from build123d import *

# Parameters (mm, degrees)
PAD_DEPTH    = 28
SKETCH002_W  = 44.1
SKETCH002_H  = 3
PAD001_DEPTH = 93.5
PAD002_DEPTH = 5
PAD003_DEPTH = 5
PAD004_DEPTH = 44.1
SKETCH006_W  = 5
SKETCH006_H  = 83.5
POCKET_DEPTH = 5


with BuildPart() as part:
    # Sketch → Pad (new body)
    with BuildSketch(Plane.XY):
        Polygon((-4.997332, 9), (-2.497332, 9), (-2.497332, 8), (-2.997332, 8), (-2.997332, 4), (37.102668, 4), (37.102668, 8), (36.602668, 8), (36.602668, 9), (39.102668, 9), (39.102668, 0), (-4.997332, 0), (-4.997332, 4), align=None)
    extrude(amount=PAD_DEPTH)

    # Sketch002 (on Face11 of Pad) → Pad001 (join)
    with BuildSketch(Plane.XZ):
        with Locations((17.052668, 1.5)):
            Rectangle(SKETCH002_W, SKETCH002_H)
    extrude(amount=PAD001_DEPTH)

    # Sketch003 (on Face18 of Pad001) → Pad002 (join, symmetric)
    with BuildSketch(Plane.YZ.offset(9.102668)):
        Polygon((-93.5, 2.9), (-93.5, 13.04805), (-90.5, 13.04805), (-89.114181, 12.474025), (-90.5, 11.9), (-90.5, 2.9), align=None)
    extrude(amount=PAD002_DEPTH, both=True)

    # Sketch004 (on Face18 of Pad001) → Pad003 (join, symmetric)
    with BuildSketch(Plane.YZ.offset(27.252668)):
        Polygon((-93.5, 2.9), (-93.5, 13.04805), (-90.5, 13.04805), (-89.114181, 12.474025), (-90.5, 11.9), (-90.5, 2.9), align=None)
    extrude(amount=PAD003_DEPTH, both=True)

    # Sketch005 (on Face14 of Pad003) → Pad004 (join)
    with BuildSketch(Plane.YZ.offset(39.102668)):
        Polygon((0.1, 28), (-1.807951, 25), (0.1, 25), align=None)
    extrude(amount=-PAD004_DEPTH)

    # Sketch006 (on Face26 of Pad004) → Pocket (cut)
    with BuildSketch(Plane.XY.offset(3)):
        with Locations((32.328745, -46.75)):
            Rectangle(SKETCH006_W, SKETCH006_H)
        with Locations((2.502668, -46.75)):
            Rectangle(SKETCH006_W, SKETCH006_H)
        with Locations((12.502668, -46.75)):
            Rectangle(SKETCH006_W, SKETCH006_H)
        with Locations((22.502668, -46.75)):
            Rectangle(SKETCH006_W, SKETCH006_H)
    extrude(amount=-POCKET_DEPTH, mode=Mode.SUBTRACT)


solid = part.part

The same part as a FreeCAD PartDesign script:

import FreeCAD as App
import Part
import Sketcher

V = App.Vector
Q = App.Units.Quantity

doc = App.newDocument("Part")
params = doc.addObject("Spreadsheet::Sheet", "Params")
for row, (alias, value) in enumerate([
    ("sketch1_height", "9 mm"),
    ("sketch1_height2", "1 mm"),
    ("sketch1_height3", "4 mm"),
    ("sketch1_width", "2.5 mm"),
    ("sketch1_width2", "44.1 mm"),
    ("pad1_length", "28 mm"),
    ("sketch2_height", "3 mm"),
    ("sketch2_width", "44.1 mm"),
    ("pad2_length", "93.5 mm"),
    ("sketch3_width", "3 mm"),
    ("sketch3_height", "9 mm"),
    ("sketch3_length", "1.5 mm"),
    ("pad3_length", "10 mm"),
    ("sketch4_width", "3 mm"),
    ("sketch4_height", "9 mm"),
    ("sketch4_length", "1.5 mm"),
    ("pad4_length", "10 mm"),
    ("sketch5_height", "3 mm"),
    ("pad5_length", "44.1 mm"),
    ("sketch6_width", "5 mm"),
    ("sketch6_height", "83.5 mm"),
    ("pocket1_length", "5 mm"),
], start=1):
    params.set(f"A{row}", alias)
    params.set(f"B{row}", "=" + value)
    params.setAlias(f"B{row}", alias)

body = doc.addObject("PartDesign::Body", "Body")

# Sketch on XY plane
sketch1 = body.newObject("Sketcher::SketchObject", "Sketch")
sketch1.AttachmentSupport = (doc.getObject("XY_Plane"), [""])
sketch1.MapMode = "FlatFace"
sketch1.addGeometry(Part.LineSegment(V(-2.5, 9, 0), V(-5, 9, 0)), False)
sketch1.addGeometry(Part.LineSegment(V(-5, 9, 0), V(-5, 0, 0)), False)
sketch1.addGeometry(Part.LineSegment(V(-5, 0, 0), V(39.1, 0, 0)), False)
sketch1.addGeometry(Part.LineSegment(V(39.1, 0, 0), V(39.1, 9, 0)), False)
sketch1.addGeometry(Part.LineSegment(V(39.1, 9, 0), V(36.6, 9, 0)), False)
sketch1.addGeometry(Part.LineSegment(V(36.6, 9, 0), V(36.6, 8, 0)), False)
sketch1.addGeometry(Part.LineSegment(V(36.6, 8, 0), V(37.1, 8, 0)), False)
sketch1.addGeometry(Part.LineSegment(V(37.1, 8, 0), V(37.1, 4, 0)), False)
sketch1.addGeometry(Part.LineSegment(V(37.1, 4, 0), V(-3, 4, 0)), False)
sketch1.addGeometry(Part.LineSegment(V(-3, 4, 0), V(-3, 8, 0)), False)
sketch1.addGeometry(Part.LineSegment(V(-3, 8, 0), V(-2.5, 8, 0)), False)
sketch1.addGeometry(Part.LineSegment(V(-2.5, 8, 0), V(-2.5, 9, 0)), False)
sketch1.addConstraint(Sketcher.Constraint("Coincident", 0, 2, 1, 1))
sketch1.addConstraint(Sketcher.Constraint("Coincident", 1, 2, 2, 1))
sketch1.addConstraint(Sketcher.Constraint("Coincident", 2, 2, 3, 1))
sketch1.addConstraint(Sketcher.Constraint("Coincident", 3, 2, 4, 1))
sketch1.addConstraint(Sketcher.Constraint("Coincident", 4, 2, 5, 1))
sketch1.addConstraint(Sketcher.Constraint("Coincident", 5, 2, 6, 1))
sketch1.addConstraint(Sketcher.Constraint("Coincident", 6, 2, 7, 1))
sketch1.addConstraint(Sketcher.Constraint("Coincident", 7, 2, 8, 1))
sketch1.addConstraint(Sketcher.Constraint("Coincident", 8, 2, 9, 1))
sketch1.addConstraint(Sketcher.Constraint("Coincident", 9, 2, 10, 1))
sketch1.addConstraint(Sketcher.Constraint("Coincident", 10, 2, 11, 1))
sketch1.addConstraint(Sketcher.Constraint("Coincident", 11, 2, 0, 1))
sketch1.addConstraint(Sketcher.Constraint("Horizontal", 0))
sketch1.addConstraint(Sketcher.Constraint("Vertical", 1))
sketch1.addConstraint(Sketcher.Constraint("Horizontal", 2))
sketch1.addConstraint(Sketcher.Constraint("Vertical", 3))
sketch1.addConstraint(Sketcher.Constraint("Horizontal", 4))
sketch1.addConstraint(Sketcher.Constraint("Vertical", 5))
sketch1.addConstraint(Sketcher.Constraint("Horizontal", 6))
sketch1.addConstraint(Sketcher.Constraint("Vertical", 7))
sketch1.addConstraint(Sketcher.Constraint("Horizontal", 8))
sketch1.addConstraint(Sketcher.Constraint("Vertical", 9))
sketch1.addConstraint(Sketcher.Constraint("Horizontal", 10))
sketch1.addConstraint(Sketcher.Constraint("Vertical", 11))
sketch1.addConstraint(Sketcher.Constraint("PointOnObject", 1, 2, -1))
sketch1.addConstraint(Sketcher.Constraint("Horizontal", 0, 2, 3, 2))
sketch1.addConstraint(Sketcher.Constraint("Horizontal", 6, 2, 9, 2))
sketch1.addConstraint(Sketcher.Constraint("Equal", 0, 4))
sketch1.addConstraint(Sketcher.Constraint("Equal", 6, 10))
sketch1.addConstraint(Sketcher.Constraint("DistanceY", 1, 2, 1, 1, 9.0))
sketch1.addConstraint(Sketcher.Constraint("DistanceY", 5, 2, 5, 1, 1.0))
sketch1.addConstraint(Sketcher.Constraint("DistanceY", 7, 2, 7, 1, 4.0))
sketch1.addConstraint(Sketcher.Constraint("DistanceX", 0, 2, 0, 1, 2.5))
sketch1.addConstraint(Sketcher.Constraint("DistanceX", 2, 1, 2, 2, 44.1))
sketch1.addConstraint(Sketcher.Constraint("DistanceX", 6, 1, 6, 2, 0.5))
sketch1.addConstraint(Sketcher.Constraint("DistanceX", 0, 2, -1, 1, 4.997332))
sketch1.setExpression("Constraints[29]", "Params.sketch1_height")
sketch1.setExpression("Constraints[30]", "Params.sketch1_height2")
sketch1.setExpression("Constraints[31]", "Params.sketch1_height3")
sketch1.setExpression("Constraints[32]", "Params.sketch1_width")
sketch1.setExpression("Constraints[33]", "Params.sketch1_width2")
pad1 = body.newObject("PartDesign::Pad", "Pad")
pad1.Profile = sketch1
pad1.setExpression("Length", "Params.pad1_length")

# Sketch on XZ plane
sketch2 = body.newObject("Sketcher::SketchObject", "Sketch001")
sketch2.AttachmentSupport = (doc.getObject("XZ_Plane"), [""])
sketch2.MapMode = "FlatFace"
sketch2.addGeometry(Part.LineSegment(V(-5, 3, 0), V(-5, 0, 0)), False)
sketch2.addGeometry(Part.LineSegment(V(-5, 0, 0), V(39.1, 0, 0)), False)
sketch2.addGeometry(Part.LineSegment(V(39.1, 0, 0), V(39.1, 3, 0)), False)
sketch2.addGeometry(Part.LineSegment(V(39.1, 3, 0), V(-5, 3, 0)), False)
sketch2.addConstraint(Sketcher.Constraint("Coincident", 0, 2, 1, 1))
sketch2.addConstraint(Sketcher.Constraint("Coincident", 1, 2, 2, 1))
sketch2.addConstraint(Sketcher.Constraint("Coincident", 2, 2, 3, 1))
sketch2.addConstraint(Sketcher.Constraint("Coincident", 3, 2, 0, 1))
sketch2.addConstraint(Sketcher.Constraint("Vertical", 0))
sketch2.addConstraint(Sketcher.Constraint("Horizontal", 1))
sketch2.addConstraint(Sketcher.Constraint("Vertical", 2))
sketch2.addConstraint(Sketcher.Constraint("Horizontal", 3))
sketch2.addConstraint(Sketcher.Constraint("PointOnObject", 0, 2, -1))
sketch2.addConstraint(Sketcher.Constraint("DistanceY", 0, 2, 0, 1, 3.0))
sketch2.addConstraint(Sketcher.Constraint("DistanceX", 1, 1, 1, 2, 44.1))
sketch2.addConstraint(Sketcher.Constraint("DistanceX", 0, 2, -1, 1, 4.997332))
sketch2.setExpression("Constraints[9]", "Params.sketch2_height")
sketch2.setExpression("Constraints[10]", "Params.sketch2_width")
pad2 = body.newObject("PartDesign::Pad", "Pad001")
pad2.Profile = sketch2
pad2.setExpression("Length", "Params.pad2_length")

# Sketch on YZ plane
sketch3 = body.newObject("Sketcher::SketchObject", "Sketch002")
sketch3.AttachmentSupport = (doc.getObject("YZ_Plane"), [""])
sketch3.MapMode = "FlatFace"
sketch3.AttachmentOffset = App.Placement(V(0, 0, 9.102668), App.Rotation())
sketch3.addGeometry(Part.LineSegment(V(-93.5, 13, 0), V(-93.5, 2.9, 0)), False)
sketch3.addGeometry(Part.LineSegment(V(-93.5, 2.9, 0), V(-90.5, 2.9, 0)), False)
sketch3.addGeometry(Part.LineSegment(V(-90.5, 2.9, 0), V(-90.5, 11.9, 0)), False)
sketch3.addGeometry(Part.LineSegment(V(-90.5, 11.9, 0), V(-89.1, 12.5, 0)), False)
sketch3.addGeometry(Part.LineSegment(V(-89.1, 12.5, 0), V(-90.5, 13, 0)), False)
sketch3.addGeometry(Part.LineSegment(V(-90.5, 13, 0), V(-93.5, 13, 0)), False)
sketch3.addConstraint(Sketcher.Constraint("Coincident", 0, 2, 1, 1))
sketch3.addConstraint(Sketcher.Constraint("Coincident", 1, 2, 2, 1))
sketch3.addConstraint(Sketcher.Constraint("Coincident", 2, 2, 3, 1))
sketch3.addConstraint(Sketcher.Constraint("Coincident", 3, 2, 4, 1))
sketch3.addConstraint(Sketcher.Constraint("Coincident", 4, 2, 5, 1))
sketch3.addConstraint(Sketcher.Constraint("Coincident", 5, 2, 0, 1))
sketch3.addConstraint(Sketcher.Constraint("Vertical", 0))
sketch3.addConstraint(Sketcher.Constraint("Horizontal", 1))
sketch3.addConstraint(Sketcher.Constraint("Vertical", 2))
sketch3.addConstraint(Sketcher.Constraint("Horizontal", 5))
sketch3.addConstraint(Sketcher.Constraint("Vertical", 2, 2, 4, 2))
sketch3.addConstraint(Sketcher.Constraint("Equal", 3, 4))
sketch3.addConstraint(Sketcher.Constraint("DistanceX", 1, 1, 1, 2, 3.0))
sketch3.addConstraint(Sketcher.Constraint("DistanceY", 2, 1, 2, 2, 9.0))
sketch3.addConstraint(Sketcher.Constraint("Angle", 3, Q("22.499999 deg")))
sketch3.addConstraint(Sketcher.Constraint("Distance", 3, 1.5))
sketch3.addConstraint(Sketcher.Constraint("DistanceX", 0, 2, -1, 1, 93.5))
sketch3.addConstraint(Sketcher.Constraint("DistanceY", -1, 1, 0, 2, 2.9))
sketch3.setExpression("Constraints[12]", "Params.sketch3_width")
sketch3.setExpression("Constraints[13]", "Params.sketch3_height")
sketch3.setExpression("Constraints[15]", "Params.sketch3_length")
pad3 = body.newObject("PartDesign::Pad", "Pad002")
pad3.Profile = sketch3
pad3.setExpression("Length", "Params.pad3_length")
pad3.Midplane = True

# Sketch on YZ plane
sketch4 = body.newObject("Sketcher::SketchObject", "Sketch003")
sketch4.AttachmentSupport = (doc.getObject("YZ_Plane"), [""])
sketch4.MapMode = "FlatFace"
sketch4.AttachmentOffset = App.Placement(V(0, 0, 27.252668), App.Rotation())
sketch4.addGeometry(Part.LineSegment(V(-93.5, 13, 0), V(-93.5, 2.9, 0)), False)
sketch4.addGeometry(Part.LineSegment(V(-93.5, 2.9, 0), V(-90.5, 2.9, 0)), False)
sketch4.addGeometry(Part.LineSegment(V(-90.5, 2.9, 0), V(-90.5, 11.9, 0)), False)
sketch4.addGeometry(Part.LineSegment(V(-90.5, 11.9, 0), V(-89.1, 12.5, 0)), False)
sketch4.addGeometry(Part.LineSegment(V(-89.1, 12.5, 0), V(-90.5, 13, 0)), False)
sketch4.addGeometry(Part.LineSegment(V(-90.5, 13, 0), V(-93.5, 13, 0)), False)
sketch4.addConstraint(Sketcher.Constraint("Coincident", 0, 2, 1, 1))
sketch4.addConstraint(Sketcher.Constraint("Coincident", 1, 2, 2, 1))
sketch4.addConstraint(Sketcher.Constraint("Coincident", 2, 2, 3, 1))
sketch4.addConstraint(Sketcher.Constraint("Coincident", 3, 2, 4, 1))
sketch4.addConstraint(Sketcher.Constraint("Coincident", 4, 2, 5, 1))
sketch4.addConstraint(Sketcher.Constraint("Coincident", 5, 2, 0, 1))
sketch4.addConstraint(Sketcher.Constraint("Vertical", 0))
sketch4.addConstraint(Sketcher.Constraint("Horizontal", 1))
sketch4.addConstraint(Sketcher.Constraint("Vertical", 2))
sketch4.addConstraint(Sketcher.Constraint("Horizontal", 5))
sketch4.addConstraint(Sketcher.Constraint("Vertical", 2, 2, 4, 2))
sketch4.addConstraint(Sketcher.Constraint("Equal", 3, 4))
sketch4.addConstraint(Sketcher.Constraint("DistanceX", 1, 1, 1, 2, 3.0))
sketch4.addConstraint(Sketcher.Constraint("DistanceY", 2, 1, 2, 2, 9.0))
sketch4.addConstraint(Sketcher.Constraint("Angle", 3, Q("22.499999 deg")))
sketch4.addConstraint(Sketcher.Constraint("Distance", 3, 1.5))
sketch4.addConstraint(Sketcher.Constraint("DistanceX", 0, 2, -1, 1, 93.5))
sketch4.addConstraint(Sketcher.Constraint("DistanceY", -1, 1, 0, 2, 2.9))
sketch4.setExpression("Constraints[12]", "Params.sketch4_width")
sketch4.setExpression("Constraints[13]", "Params.sketch4_height")
sketch4.setExpression("Constraints[15]", "Params.sketch4_length")
pad4 = body.newObject("PartDesign::Pad", "Pad003")
pad4.Profile = sketch4
pad4.setExpression("Length", "Params.pad4_length")
pad4.Midplane = True

# Sketch on YZ plane
sketch5 = body.newObject("Sketcher::SketchObject", "Sketch004")
sketch5.AttachmentSupport = (doc.getObject("YZ_Plane"), [""])
sketch5.MapMode = "FlatFace"
sketch5.AttachmentOffset = App.Placement(V(0, 0, 39.102668), App.Rotation())
sketch5.addGeometry(Part.LineSegment(V(0.1, 28, 0), V(-1.8, 25, 0)), False)
sketch5.addGeometry(Part.LineSegment(V(-1.8, 25, 0), V(0.1, 25, 0)), False)
sketch5.addGeometry(Part.LineSegment(V(0.1, 25, 0), V(0.1, 28, 0)), False)
sketch5.addConstraint(Sketcher.Constraint("Coincident", 0, 2, 1, 1))
sketch5.addConstraint(Sketcher.Constraint("Coincident", 1, 2, 2, 1))
sketch5.addConstraint(Sketcher.Constraint("Coincident", 2, 2, 0, 1))
sketch5.addConstraint(Sketcher.Constraint("Horizontal", 1))
sketch5.addConstraint(Sketcher.Constraint("Vertical", 2))
sketch5.addConstraint(Sketcher.Constraint("DistanceY", 2, 1, 2, 2, 3.0))
sketch5.addConstraint(Sketcher.Constraint("DistanceY", -1, 1, 0, 2, 25.0))
sketch5.addConstraint(Sketcher.Constraint("DistanceX", -1, 1, 1, 2, 0.1))
sketch5.addConstraint(Sketcher.Constraint("DistanceX", 1, 1, 1, 2, 1.907951))
sketch5.setExpression("Constraints[5]", "Params.sketch5_height")
pad5 = body.newObject("PartDesign::Pad", "Pad004")
pad5.Profile = sketch5
pad5.setExpression("Length", "Params.pad5_length")
pad5.Reversed = True

# Sketch on XY plane
sketch6 = body.newObject("Sketcher::SketchObject", "Sketch005")
sketch6.AttachmentSupport = (doc.getObject("XY_Plane"), [""])
sketch6.MapMode = "FlatFace"
sketch6.AttachmentOffset = App.Placement(V(0, 0, 3), App.Rotation())
sketch6.addGeometry(Part.LineSegment(V(29.8, -5, 0), V(29.8, -88.5, 0)), False)
sketch6.addGeometry(Part.LineSegment(V(29.8, -88.5, 0), V(34.8, -88.5, 0)), False)
sketch6.addGeometry(Part.LineSegment(V(34.8, -88.5, 0), V(34.8, -5, 0)), False)
sketch6.addGeometry(Part.LineSegment(V(34.8, -5, 0), V(29.8, -5, 0)), False)
sketch6.addGeometry(Part.LineSegment(V(0, -5, 0), V(0, -88.5, 0)), False)
sketch6.addGeometry(Part.LineSegment(V(0, -88.5, 0), V(5, -88.5, 0)), False)
sketch6.addGeometry(Part.LineSegment(V(5, -88.5, 0), V(5, -5, 0)), False)
sketch6.addGeometry(Part.LineSegment(V(5, -5, 0), V(0, -5, 0)), False)
sketch6.addGeometry(Part.LineSegment(V(10, -5, 0), V(10, -88.5, 0)), False)
sketch6.addGeometry(Part.LineSegment(V(10, -88.5, 0), V(15, -88.5, 0)), False)
sketch6.addGeometry(Part.LineSegment(V(15, -88.5, 0), V(15, -5, 0)), False)
sketch6.addGeometry(Part.LineSegment(V(15, -5, 0), V(10, -5, 0)), False)
sketch6.addGeometry(Part.LineSegment(V(20, -5, 0), V(20, -88.5, 0)), False)
sketch6.addGeometry(Part.LineSegment(V(20, -88.5, 0), V(25, -88.5, 0)), False)
sketch6.addGeometry(Part.LineSegment(V(25, -88.5, 0), V(25, -5, 0)), False)
sketch6.addGeometry(Part.LineSegment(V(25, -5, 0), V(20, -5, 0)), False)
sketch6.addConstraint(Sketcher.Constraint("Coincident", 0, 2, 1, 1))
sketch6.addConstraint(Sketcher.Constraint("Coincident", 1, 2, 2, 1))
sketch6.addConstraint(Sketcher.Constraint("Coincident", 2, 2, 3, 1))
sketch6.addConstraint(Sketcher.Constraint("Coincident", 3, 2, 0, 1))
sketch6.addConstraint(Sketcher.Constraint("Coincident", 4, 2, 5, 1))
sketch6.addConstraint(Sketcher.Constraint("Coincident", 5, 2, 6, 1))
sketch6.addConstraint(Sketcher.Constraint("Coincident", 6, 2, 7, 1))
sketch6.addConstraint(Sketcher.Constraint("Coincident", 7, 2, 4, 1))
sketch6.addConstraint(Sketcher.Constraint("Coincident", 8, 2, 9, 1))
sketch6.addConstraint(Sketcher.Constraint("Coincident", 9, 2, 10, 1))
sketch6.addConstraint(Sketcher.Constraint("Coincident", 10, 2, 11, 1))
sketch6.addConstraint(Sketcher.Constraint("Coincident", 11, 2, 8, 1))
sketch6.addConstraint(Sketcher.Constraint("Coincident", 12, 2, 13, 1))
sketch6.addConstraint(Sketcher.Constraint("Coincident", 13, 2, 14, 1))
sketch6.addConstraint(Sketcher.Constraint("Coincident", 14, 2, 15, 1))
sketch6.addConstraint(Sketcher.Constraint("Coincident", 15, 2, 12, 1))
sketch6.addConstraint(Sketcher.Constraint("Vertical", 0))
sketch6.addConstraint(Sketcher.Constraint("Horizontal", 1))
sketch6.addConstraint(Sketcher.Constraint("Vertical", 2))
sketch6.addConstraint(Sketcher.Constraint("Horizontal", 3))
sketch6.addConstraint(Sketcher.Constraint("Vertical", 4))
sketch6.addConstraint(Sketcher.Constraint("Horizontal", 5))
sketch6.addConstraint(Sketcher.Constraint("Vertical", 6))
sketch6.addConstraint(Sketcher.Constraint("Horizontal", 7))
sketch6.addConstraint(Sketcher.Constraint("Vertical", 8))
sketch6.addConstraint(Sketcher.Constraint("Horizontal", 9))
sketch6.addConstraint(Sketcher.Constraint("Vertical", 10))
sketch6.addConstraint(Sketcher.Constraint("Horizontal", 11))
sketch6.addConstraint(Sketcher.Constraint("Vertical", 12))
sketch6.addConstraint(Sketcher.Constraint("Horizontal", 13))
sketch6.addConstraint(Sketcher.Constraint("Vertical", 14))
sketch6.addConstraint(Sketcher.Constraint("Horizontal", 15))
sketch6.addConstraint(Sketcher.Constraint("Horizontal", 1, 2, 4, 2))
sketch6.addConstraint(Sketcher.Constraint("Horizontal", 3, 2, 6, 2))
sketch6.addConstraint(Sketcher.Constraint("Horizontal", 5, 2, 8, 2))
sketch6.addConstraint(Sketcher.Constraint("Horizontal", 7, 2, 10, 2))
sketch6.addConstraint(Sketcher.Constraint("Horizontal", 9, 2, 12, 2))
sketch6.addConstraint(Sketcher.Constraint("Horizontal", 11, 2, 14, 2))
sketch6.addConstraint(Sketcher.Constraint("Equal", 3, 5))
sketch6.addConstraint(Sketcher.Constraint("Equal", 7, 9))
sketch6.addConstraint(Sketcher.Constraint("Equal", 11, 13))
sketch6.addConstraint(Sketcher.Constraint("DistanceX", 1, 1, 1, 2, 5.0))
sketch6.addConstraint(Sketcher.Constraint("DistanceY", 0, 2, 0, 1, 83.5))
sketch6.addConstraint(Sketcher.Constraint("DistanceY", 2, 2, -1, 1, 5.0))
sketch6.addConstraint(Sketcher.Constraint("DistanceX", 5, 2, 8, 2, 5.0))
sketch6.addConstraint(Sketcher.Constraint("DistanceX", 9, 2, 12, 2, 5.0))
sketch6.addConstraint(Sketcher.Constraint("DistanceX", -1, 1, 12, 2, 20.002668))
sketch6.addConstraint(Sketcher.Constraint("DistanceX", -1, 1, 0, 2, 29.828745))
sketch6.setExpression("Constraints[41]", "Params.sketch6_width")
sketch6.setExpression("Constraints[42]", "Params.sketch6_height")
pocket1 = body.newObject("PartDesign::Pocket", "Pocket")
pocket1.Profile = sketch6
pocket1.setExpression("Length", "Params.pocket1_length")

doc.recompute()
